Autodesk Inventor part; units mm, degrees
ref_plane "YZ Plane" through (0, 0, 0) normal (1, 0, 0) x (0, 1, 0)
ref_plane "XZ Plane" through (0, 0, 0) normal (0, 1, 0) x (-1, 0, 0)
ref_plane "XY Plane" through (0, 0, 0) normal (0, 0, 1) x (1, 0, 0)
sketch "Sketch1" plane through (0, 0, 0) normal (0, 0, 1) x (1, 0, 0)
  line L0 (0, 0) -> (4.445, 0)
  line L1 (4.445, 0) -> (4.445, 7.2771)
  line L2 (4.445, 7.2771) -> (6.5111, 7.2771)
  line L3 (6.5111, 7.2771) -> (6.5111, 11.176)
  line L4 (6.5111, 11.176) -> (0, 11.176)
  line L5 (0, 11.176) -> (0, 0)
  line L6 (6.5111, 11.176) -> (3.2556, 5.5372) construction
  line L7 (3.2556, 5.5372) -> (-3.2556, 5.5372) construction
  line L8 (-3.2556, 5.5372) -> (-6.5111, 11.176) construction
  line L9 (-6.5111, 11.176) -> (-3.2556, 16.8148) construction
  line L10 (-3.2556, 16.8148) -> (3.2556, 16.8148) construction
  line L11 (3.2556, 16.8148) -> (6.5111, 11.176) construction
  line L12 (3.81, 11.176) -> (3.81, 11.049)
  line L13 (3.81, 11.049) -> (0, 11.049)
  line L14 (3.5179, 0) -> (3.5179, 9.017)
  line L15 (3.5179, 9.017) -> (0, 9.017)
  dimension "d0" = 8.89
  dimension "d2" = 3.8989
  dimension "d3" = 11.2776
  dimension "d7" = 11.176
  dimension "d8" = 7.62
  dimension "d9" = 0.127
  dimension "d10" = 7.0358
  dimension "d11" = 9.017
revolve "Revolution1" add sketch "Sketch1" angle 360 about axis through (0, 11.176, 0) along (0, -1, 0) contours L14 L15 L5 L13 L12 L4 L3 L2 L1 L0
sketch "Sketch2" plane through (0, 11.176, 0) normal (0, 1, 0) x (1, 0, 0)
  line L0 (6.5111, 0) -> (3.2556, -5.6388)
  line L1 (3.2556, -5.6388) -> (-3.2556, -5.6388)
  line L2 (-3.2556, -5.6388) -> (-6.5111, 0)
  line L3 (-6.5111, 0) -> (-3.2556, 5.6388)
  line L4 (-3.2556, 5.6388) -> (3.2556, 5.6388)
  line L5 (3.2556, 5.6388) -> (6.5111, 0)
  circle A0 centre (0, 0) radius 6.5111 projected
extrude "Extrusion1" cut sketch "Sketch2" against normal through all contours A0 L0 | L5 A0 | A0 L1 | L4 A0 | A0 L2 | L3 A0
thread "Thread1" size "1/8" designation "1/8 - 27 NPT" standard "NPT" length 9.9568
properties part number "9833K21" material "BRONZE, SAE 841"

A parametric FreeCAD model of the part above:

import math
import FreeCAD as App
import Part
import Sketcher
from FreeCAD import Vector
Q = App.Units.Quantity

doc = App.newDocument("Part")
body = doc.addObject("PartDesign::Body", "Body")

# Sketch on XY plane
sketch1 = body.newObject("Sketcher::SketchObject", "Sketch")
sketch1.AttachmentSupport = (doc.getObject("XY_Plane"), [""])
sketch1.MapMode = "FlatFace"
sketch1.addGeometry(Part.LineSegment(Vector(3.52, 9.02, 0), Vector(3.52, 0, 0)), False)
sketch1.addGeometry(Part.LineSegment(Vector(3.52, 0, 0), Vector(4.45, 0, 0)), False)
sketch1.addGeometry(Part.LineSegment(Vector(4.45, 0, 0), Vector(4.45, 7.28, 0)), False)
sketch1.addGeometry(Part.LineSegment(Vector(4.45, 7.28, 0), Vector(6.51, 7.28, 0)), False)
sketch1.addGeometry(Part.LineSegment(Vector(6.51, 7.28, 0), Vector(6.51, 11.18, 0)), False)
sketch1.addGeometry(Part.LineSegment(Vector(6.51, 11.18, 0), Vector(3.81, 11.18, 0)), False)
sketch1.addGeometry(Part.LineSegment(Vector(3.81, 11.18, 0), Vector(3.81, 11.05, 0)), False)
sketch1.addGeometry(Part.LineSegment(Vector(3.81, 11.05, 0), Vector(0, 11.05, 0)), False)
sketch1.addGeometry(Part.LineSegment(Vector(0, 11.05, 0), Vector(0, 9.02, 0)), False)
sketch1.addGeometry(Part.LineSegment(Vector(0, 9.02, 0), Vector(3.52, 9.02, 0)), False)
sketch1.addConstraint(Sketcher.Constraint("Coincident", 0, 2, 1, 1))
sketch1.addConstraint(Sketcher.Constraint("Coincident", 1, 2, 2, 1))
sketch1.addConstraint(Sketcher.Constraint("Coincident", 2, 2, 3, 1))
sketch1.addConstraint(Sketcher.Constraint("Coincident", 3, 2, 4, 1))
sketch1.addConstraint(Sketcher.Constraint("Coincident", 4, 2, 5, 1))
sketch1.addConstraint(Sketcher.Constraint("Coincident", 5, 2, 6, 1))
sketch1.addConstraint(Sketcher.Constraint("Coincident", 6, 2, 7, 1))
sketch1.addConstraint(Sketcher.Constraint("Coincident", 7, 2, 8, 1))
sketch1.addConstraint(Sketcher.Constraint("Coincident", 8, 2, 9, 1))
sketch1.addConstraint(Sketcher.Constraint("Coincident", 9, 2, 0, 1))
sketch1.addConstraint(Sketcher.Constraint("Vertical", 0))
sketch1.addConstraint(Sketcher.Constraint("Horizontal", 1))
sketch1.addConstraint(Sketcher.Constraint("Vertical", 2))
sketch1.addConstraint(Sketcher.Constraint("Horizontal", 3))
sketch1.addConstraint(Sketcher.Constraint("Vertical", 4))
sketch1.addConstraint(Sketcher.Constraint("Horizontal", 5))
sketch1.addConstraint(Sketcher.Constraint("Vertical", 6))
sketch1.addConstraint(Sketcher.Constraint("Horizontal", 7))
sketch1.addConstraint(Sketcher.Constraint("Vertical", 8))
sketch1.addConstraint(Sketcher.Constraint("Horizontal", 9))
sketch1.addConstraint(Sketcher.Constraint("PointOnObject", 0, 2, -1))
sketch1.addConstraint(Sketcher.Constraint("PointOnObject", 7, 2, -2))
sketch1.addConstraint(Sketcher.Constraint("DistanceY", 0, 2, 0, 1, Q("0.355 in")))
sketch1.addConstraint(Sketcher.Constraint("DistanceY", 6, 2, 6, 1, Q("0.005 in")))
sketch1.addConstraint(Sketcher.Constraint("DistanceY", -1, 1, 4, 2, Q("0.44 in")))
sketch1.addConstraint(Sketcher.Constraint("DistanceY", 4, 1, 4, 2, Q("0.1535 in")))
sketch1.addConstraint(Sketcher.Constraint("DistanceX", 7, 2, 7, 1, Q("0.15 in")))
sketch1.addConstraint(Sketcher.Constraint("DistanceX", 1, 1, 1, 2, Q("0.0365 in")))
sketch1.addConstraint(Sketcher.Constraint("DistanceX", 9, 1, 9, 2, Q("0.1385 in")))
sketch1.addConstraint(Sketcher.Constraint("DistanceX", 3, 1, 3, 2, 2.066))
revolution = body.newObject("PartDesign::Revolution", "Revolution")
revolution.Profile = sketch1
revolution.ReferenceAxis = (sketch1, ["V_Axis"])
revolution.Angle = 360

# Sketch on XZ plane
sketch2 = body.newObject("Sketcher::SketchObject", "Sketch001")
sketch2.AttachmentSupport = (doc.getObject("XZ_Plane"), [""])
sketch2.MapMode = "FlatFace"
sketch2.AttachmentOffset = App.Placement(Vector(0, 0, -0.44 * 25.4), App.Rotation())
sketch2.addGeometry(Part.ArcOfCircle(Part.Circle(Vector(0, 0, 0), Vector(0, 0, 1), 7), math.radians(0), math.radians(60)), False)
sketch2.addGeometry(Part.LineSegment(Vector(7, 0, 0), Vector(3, 6, 0)), False)
sketch2.addGeometry(Part.LineSegment(Vector(3, -6, 0), Vector(7, 0, 0)), False)
sketch2.addGeometry(Part.ArcOfCircle(Part.Circle(Vector(0, 0, 0), Vector(0, 0, 1), 7), math.radians(-60), math.radians(0)), False)
sketch2.addGeometry(Part.ArcOfCircle(Part.Circle(Vector(0, 0, 0), Vector(0, 0, 1), 7), math.radians(60), math.radians(120)), False)
sketch2.addGeometry(Part.LineSegment(Vector(-3, 6, 0), Vector(3, 6, 0)), False)
sketch2.addGeometry(Part.LineSegment(Vector(-3, -6, 0), Vector(3, -6, 0)), False)
sketch2.addGeometry(Part.ArcOfCircle(Part.Circle(Vector(0, 0, 0), Vector(0, 0, 1), 7), math.radians(-120), math.radians(-60)), False)
sketch2.addGeometry(Part.ArcOfCircle(Part.Circle(Vector(0, 0, 0), Vector(0, 0, 1), 7), math.radians(120), math.radians(180)), False)
sketch2.addGeometry(Part.LineSegment(Vector(-7, 0, 0), Vector(-3, 6, 0)), False)
sketch2.addGeometry(Part.LineSegment(Vector(-7, 0, 0), Vector(-3, -6, 0)), False)
sketch2.addGeometry(Part.ArcOfCircle(Part.Circle(Vector(0, 0, 0), Vector(0, 0, 1), 7), math.radians(180), math.radians(240)), False)
sketch2.addConstraint(Sketcher.Constraint("Coincident", 0, 1, 1, 1))
sketch2.addConstraint(Sketcher.Constraint("Coincident", 1, 2, 0, 2))
sketch2.addConstraint(Sketcher.Constraint("Coincident", 2, 1, 3, 1))
sketch2.addConstraint(Sketcher.Constraint("Coincident", 3, 2, 2, 2))
sketch2.addConstraint(Sketcher.Constraint("Coincident", 4, 1, 5, 2))
sketch2.addConstraint(Sketcher.Constraint("Coincident", 5, 1, 4, 2))
sketch2.addConstraint(Sketcher.Constraint("Coincident", 6, 1, 7, 1))
sketch2.addConstraint(Sketcher.Constraint("Coincident", 7, 2, 6, 2))
sketch2.addConstraint(Sketcher.Constraint("Coincident", 8, 1, 9, 2))
sketch2.addConstraint(Sketcher.Constraint("Coincident", 9, 1, 8, 2))
sketch2.addConstraint(Sketcher.Constraint("Coincident", 10, 1, 11, 1))
sketch2.addConstraint(Sketcher.Constraint("Coincident", 11, 2, 10, 2))
sketch2.addConstraint(Sketcher.Constraint("Horizontal", 5))
sketch2.addConstraint(Sketcher.Constraint("Horizontal", 6))
sketch2.addConstraint(Sketcher.Constraint("Coincident", 0, 3, -1, 1))
sketch2.addConstraint(Sketcher.Constraint("Coincident", 3, 3, -1, 1))
sketch2.addConstraint(Sketcher.Constraint("Coincident", 4, 3, -1, 1))
sketch2.addConstraint(Sketcher.Constraint("Coincident", 7, 3, -1, 1))
sketch2.addConstraint(Sketcher.Constraint("Coincident", 8, 3, -1, 1))
sketch2.addConstraint(Sketcher.Constraint("Coincident", 11, 3, -1, 1))
sketch2.addConstraint(Sketcher.Constraint("Coincident", 3, 2, 0, 1))
sketch2.addConstraint(Sketcher.Constraint("Coincident", 4, 1, 1, 2))
sketch2.addConstraint(Sketcher.Constraint("Coincident", 7, 2, 2, 1))
sketch2.addConstraint(Sketcher.Constraint("Coincident", 8, 1, 5, 1))
sketch2.addConstraint(Sketcher.Constraint("Coincident", 10, 1, 9, 1))
sketch2.addConstraint(Sketcher.Constraint("PointOnObject", 0, 1, -1))
sketch2.addConstraint(Sketcher.Constraint("PointOnObject", 9, 1, -1))
sketch2.addConstraint(Sketcher.Constraint("Parallel", 2, 9))
sketch2.addConstraint(Sketcher.Constraint("Parallel", 1, 10))
sketch2.addConstraint(Sketcher.Constraint("Angle", 1, Q("119.9995 deg")))
sketch2.addConstraint(Sketcher.Constraint("Radius", 0, 6.511))
pocket1 = body.newObject("PartDesign::Pocket", "Pocket")
pocket1.Profile = sketch2
pocket1.Type = "ThroughAll"
pocket1.Reversed = True

doc.recompute()
